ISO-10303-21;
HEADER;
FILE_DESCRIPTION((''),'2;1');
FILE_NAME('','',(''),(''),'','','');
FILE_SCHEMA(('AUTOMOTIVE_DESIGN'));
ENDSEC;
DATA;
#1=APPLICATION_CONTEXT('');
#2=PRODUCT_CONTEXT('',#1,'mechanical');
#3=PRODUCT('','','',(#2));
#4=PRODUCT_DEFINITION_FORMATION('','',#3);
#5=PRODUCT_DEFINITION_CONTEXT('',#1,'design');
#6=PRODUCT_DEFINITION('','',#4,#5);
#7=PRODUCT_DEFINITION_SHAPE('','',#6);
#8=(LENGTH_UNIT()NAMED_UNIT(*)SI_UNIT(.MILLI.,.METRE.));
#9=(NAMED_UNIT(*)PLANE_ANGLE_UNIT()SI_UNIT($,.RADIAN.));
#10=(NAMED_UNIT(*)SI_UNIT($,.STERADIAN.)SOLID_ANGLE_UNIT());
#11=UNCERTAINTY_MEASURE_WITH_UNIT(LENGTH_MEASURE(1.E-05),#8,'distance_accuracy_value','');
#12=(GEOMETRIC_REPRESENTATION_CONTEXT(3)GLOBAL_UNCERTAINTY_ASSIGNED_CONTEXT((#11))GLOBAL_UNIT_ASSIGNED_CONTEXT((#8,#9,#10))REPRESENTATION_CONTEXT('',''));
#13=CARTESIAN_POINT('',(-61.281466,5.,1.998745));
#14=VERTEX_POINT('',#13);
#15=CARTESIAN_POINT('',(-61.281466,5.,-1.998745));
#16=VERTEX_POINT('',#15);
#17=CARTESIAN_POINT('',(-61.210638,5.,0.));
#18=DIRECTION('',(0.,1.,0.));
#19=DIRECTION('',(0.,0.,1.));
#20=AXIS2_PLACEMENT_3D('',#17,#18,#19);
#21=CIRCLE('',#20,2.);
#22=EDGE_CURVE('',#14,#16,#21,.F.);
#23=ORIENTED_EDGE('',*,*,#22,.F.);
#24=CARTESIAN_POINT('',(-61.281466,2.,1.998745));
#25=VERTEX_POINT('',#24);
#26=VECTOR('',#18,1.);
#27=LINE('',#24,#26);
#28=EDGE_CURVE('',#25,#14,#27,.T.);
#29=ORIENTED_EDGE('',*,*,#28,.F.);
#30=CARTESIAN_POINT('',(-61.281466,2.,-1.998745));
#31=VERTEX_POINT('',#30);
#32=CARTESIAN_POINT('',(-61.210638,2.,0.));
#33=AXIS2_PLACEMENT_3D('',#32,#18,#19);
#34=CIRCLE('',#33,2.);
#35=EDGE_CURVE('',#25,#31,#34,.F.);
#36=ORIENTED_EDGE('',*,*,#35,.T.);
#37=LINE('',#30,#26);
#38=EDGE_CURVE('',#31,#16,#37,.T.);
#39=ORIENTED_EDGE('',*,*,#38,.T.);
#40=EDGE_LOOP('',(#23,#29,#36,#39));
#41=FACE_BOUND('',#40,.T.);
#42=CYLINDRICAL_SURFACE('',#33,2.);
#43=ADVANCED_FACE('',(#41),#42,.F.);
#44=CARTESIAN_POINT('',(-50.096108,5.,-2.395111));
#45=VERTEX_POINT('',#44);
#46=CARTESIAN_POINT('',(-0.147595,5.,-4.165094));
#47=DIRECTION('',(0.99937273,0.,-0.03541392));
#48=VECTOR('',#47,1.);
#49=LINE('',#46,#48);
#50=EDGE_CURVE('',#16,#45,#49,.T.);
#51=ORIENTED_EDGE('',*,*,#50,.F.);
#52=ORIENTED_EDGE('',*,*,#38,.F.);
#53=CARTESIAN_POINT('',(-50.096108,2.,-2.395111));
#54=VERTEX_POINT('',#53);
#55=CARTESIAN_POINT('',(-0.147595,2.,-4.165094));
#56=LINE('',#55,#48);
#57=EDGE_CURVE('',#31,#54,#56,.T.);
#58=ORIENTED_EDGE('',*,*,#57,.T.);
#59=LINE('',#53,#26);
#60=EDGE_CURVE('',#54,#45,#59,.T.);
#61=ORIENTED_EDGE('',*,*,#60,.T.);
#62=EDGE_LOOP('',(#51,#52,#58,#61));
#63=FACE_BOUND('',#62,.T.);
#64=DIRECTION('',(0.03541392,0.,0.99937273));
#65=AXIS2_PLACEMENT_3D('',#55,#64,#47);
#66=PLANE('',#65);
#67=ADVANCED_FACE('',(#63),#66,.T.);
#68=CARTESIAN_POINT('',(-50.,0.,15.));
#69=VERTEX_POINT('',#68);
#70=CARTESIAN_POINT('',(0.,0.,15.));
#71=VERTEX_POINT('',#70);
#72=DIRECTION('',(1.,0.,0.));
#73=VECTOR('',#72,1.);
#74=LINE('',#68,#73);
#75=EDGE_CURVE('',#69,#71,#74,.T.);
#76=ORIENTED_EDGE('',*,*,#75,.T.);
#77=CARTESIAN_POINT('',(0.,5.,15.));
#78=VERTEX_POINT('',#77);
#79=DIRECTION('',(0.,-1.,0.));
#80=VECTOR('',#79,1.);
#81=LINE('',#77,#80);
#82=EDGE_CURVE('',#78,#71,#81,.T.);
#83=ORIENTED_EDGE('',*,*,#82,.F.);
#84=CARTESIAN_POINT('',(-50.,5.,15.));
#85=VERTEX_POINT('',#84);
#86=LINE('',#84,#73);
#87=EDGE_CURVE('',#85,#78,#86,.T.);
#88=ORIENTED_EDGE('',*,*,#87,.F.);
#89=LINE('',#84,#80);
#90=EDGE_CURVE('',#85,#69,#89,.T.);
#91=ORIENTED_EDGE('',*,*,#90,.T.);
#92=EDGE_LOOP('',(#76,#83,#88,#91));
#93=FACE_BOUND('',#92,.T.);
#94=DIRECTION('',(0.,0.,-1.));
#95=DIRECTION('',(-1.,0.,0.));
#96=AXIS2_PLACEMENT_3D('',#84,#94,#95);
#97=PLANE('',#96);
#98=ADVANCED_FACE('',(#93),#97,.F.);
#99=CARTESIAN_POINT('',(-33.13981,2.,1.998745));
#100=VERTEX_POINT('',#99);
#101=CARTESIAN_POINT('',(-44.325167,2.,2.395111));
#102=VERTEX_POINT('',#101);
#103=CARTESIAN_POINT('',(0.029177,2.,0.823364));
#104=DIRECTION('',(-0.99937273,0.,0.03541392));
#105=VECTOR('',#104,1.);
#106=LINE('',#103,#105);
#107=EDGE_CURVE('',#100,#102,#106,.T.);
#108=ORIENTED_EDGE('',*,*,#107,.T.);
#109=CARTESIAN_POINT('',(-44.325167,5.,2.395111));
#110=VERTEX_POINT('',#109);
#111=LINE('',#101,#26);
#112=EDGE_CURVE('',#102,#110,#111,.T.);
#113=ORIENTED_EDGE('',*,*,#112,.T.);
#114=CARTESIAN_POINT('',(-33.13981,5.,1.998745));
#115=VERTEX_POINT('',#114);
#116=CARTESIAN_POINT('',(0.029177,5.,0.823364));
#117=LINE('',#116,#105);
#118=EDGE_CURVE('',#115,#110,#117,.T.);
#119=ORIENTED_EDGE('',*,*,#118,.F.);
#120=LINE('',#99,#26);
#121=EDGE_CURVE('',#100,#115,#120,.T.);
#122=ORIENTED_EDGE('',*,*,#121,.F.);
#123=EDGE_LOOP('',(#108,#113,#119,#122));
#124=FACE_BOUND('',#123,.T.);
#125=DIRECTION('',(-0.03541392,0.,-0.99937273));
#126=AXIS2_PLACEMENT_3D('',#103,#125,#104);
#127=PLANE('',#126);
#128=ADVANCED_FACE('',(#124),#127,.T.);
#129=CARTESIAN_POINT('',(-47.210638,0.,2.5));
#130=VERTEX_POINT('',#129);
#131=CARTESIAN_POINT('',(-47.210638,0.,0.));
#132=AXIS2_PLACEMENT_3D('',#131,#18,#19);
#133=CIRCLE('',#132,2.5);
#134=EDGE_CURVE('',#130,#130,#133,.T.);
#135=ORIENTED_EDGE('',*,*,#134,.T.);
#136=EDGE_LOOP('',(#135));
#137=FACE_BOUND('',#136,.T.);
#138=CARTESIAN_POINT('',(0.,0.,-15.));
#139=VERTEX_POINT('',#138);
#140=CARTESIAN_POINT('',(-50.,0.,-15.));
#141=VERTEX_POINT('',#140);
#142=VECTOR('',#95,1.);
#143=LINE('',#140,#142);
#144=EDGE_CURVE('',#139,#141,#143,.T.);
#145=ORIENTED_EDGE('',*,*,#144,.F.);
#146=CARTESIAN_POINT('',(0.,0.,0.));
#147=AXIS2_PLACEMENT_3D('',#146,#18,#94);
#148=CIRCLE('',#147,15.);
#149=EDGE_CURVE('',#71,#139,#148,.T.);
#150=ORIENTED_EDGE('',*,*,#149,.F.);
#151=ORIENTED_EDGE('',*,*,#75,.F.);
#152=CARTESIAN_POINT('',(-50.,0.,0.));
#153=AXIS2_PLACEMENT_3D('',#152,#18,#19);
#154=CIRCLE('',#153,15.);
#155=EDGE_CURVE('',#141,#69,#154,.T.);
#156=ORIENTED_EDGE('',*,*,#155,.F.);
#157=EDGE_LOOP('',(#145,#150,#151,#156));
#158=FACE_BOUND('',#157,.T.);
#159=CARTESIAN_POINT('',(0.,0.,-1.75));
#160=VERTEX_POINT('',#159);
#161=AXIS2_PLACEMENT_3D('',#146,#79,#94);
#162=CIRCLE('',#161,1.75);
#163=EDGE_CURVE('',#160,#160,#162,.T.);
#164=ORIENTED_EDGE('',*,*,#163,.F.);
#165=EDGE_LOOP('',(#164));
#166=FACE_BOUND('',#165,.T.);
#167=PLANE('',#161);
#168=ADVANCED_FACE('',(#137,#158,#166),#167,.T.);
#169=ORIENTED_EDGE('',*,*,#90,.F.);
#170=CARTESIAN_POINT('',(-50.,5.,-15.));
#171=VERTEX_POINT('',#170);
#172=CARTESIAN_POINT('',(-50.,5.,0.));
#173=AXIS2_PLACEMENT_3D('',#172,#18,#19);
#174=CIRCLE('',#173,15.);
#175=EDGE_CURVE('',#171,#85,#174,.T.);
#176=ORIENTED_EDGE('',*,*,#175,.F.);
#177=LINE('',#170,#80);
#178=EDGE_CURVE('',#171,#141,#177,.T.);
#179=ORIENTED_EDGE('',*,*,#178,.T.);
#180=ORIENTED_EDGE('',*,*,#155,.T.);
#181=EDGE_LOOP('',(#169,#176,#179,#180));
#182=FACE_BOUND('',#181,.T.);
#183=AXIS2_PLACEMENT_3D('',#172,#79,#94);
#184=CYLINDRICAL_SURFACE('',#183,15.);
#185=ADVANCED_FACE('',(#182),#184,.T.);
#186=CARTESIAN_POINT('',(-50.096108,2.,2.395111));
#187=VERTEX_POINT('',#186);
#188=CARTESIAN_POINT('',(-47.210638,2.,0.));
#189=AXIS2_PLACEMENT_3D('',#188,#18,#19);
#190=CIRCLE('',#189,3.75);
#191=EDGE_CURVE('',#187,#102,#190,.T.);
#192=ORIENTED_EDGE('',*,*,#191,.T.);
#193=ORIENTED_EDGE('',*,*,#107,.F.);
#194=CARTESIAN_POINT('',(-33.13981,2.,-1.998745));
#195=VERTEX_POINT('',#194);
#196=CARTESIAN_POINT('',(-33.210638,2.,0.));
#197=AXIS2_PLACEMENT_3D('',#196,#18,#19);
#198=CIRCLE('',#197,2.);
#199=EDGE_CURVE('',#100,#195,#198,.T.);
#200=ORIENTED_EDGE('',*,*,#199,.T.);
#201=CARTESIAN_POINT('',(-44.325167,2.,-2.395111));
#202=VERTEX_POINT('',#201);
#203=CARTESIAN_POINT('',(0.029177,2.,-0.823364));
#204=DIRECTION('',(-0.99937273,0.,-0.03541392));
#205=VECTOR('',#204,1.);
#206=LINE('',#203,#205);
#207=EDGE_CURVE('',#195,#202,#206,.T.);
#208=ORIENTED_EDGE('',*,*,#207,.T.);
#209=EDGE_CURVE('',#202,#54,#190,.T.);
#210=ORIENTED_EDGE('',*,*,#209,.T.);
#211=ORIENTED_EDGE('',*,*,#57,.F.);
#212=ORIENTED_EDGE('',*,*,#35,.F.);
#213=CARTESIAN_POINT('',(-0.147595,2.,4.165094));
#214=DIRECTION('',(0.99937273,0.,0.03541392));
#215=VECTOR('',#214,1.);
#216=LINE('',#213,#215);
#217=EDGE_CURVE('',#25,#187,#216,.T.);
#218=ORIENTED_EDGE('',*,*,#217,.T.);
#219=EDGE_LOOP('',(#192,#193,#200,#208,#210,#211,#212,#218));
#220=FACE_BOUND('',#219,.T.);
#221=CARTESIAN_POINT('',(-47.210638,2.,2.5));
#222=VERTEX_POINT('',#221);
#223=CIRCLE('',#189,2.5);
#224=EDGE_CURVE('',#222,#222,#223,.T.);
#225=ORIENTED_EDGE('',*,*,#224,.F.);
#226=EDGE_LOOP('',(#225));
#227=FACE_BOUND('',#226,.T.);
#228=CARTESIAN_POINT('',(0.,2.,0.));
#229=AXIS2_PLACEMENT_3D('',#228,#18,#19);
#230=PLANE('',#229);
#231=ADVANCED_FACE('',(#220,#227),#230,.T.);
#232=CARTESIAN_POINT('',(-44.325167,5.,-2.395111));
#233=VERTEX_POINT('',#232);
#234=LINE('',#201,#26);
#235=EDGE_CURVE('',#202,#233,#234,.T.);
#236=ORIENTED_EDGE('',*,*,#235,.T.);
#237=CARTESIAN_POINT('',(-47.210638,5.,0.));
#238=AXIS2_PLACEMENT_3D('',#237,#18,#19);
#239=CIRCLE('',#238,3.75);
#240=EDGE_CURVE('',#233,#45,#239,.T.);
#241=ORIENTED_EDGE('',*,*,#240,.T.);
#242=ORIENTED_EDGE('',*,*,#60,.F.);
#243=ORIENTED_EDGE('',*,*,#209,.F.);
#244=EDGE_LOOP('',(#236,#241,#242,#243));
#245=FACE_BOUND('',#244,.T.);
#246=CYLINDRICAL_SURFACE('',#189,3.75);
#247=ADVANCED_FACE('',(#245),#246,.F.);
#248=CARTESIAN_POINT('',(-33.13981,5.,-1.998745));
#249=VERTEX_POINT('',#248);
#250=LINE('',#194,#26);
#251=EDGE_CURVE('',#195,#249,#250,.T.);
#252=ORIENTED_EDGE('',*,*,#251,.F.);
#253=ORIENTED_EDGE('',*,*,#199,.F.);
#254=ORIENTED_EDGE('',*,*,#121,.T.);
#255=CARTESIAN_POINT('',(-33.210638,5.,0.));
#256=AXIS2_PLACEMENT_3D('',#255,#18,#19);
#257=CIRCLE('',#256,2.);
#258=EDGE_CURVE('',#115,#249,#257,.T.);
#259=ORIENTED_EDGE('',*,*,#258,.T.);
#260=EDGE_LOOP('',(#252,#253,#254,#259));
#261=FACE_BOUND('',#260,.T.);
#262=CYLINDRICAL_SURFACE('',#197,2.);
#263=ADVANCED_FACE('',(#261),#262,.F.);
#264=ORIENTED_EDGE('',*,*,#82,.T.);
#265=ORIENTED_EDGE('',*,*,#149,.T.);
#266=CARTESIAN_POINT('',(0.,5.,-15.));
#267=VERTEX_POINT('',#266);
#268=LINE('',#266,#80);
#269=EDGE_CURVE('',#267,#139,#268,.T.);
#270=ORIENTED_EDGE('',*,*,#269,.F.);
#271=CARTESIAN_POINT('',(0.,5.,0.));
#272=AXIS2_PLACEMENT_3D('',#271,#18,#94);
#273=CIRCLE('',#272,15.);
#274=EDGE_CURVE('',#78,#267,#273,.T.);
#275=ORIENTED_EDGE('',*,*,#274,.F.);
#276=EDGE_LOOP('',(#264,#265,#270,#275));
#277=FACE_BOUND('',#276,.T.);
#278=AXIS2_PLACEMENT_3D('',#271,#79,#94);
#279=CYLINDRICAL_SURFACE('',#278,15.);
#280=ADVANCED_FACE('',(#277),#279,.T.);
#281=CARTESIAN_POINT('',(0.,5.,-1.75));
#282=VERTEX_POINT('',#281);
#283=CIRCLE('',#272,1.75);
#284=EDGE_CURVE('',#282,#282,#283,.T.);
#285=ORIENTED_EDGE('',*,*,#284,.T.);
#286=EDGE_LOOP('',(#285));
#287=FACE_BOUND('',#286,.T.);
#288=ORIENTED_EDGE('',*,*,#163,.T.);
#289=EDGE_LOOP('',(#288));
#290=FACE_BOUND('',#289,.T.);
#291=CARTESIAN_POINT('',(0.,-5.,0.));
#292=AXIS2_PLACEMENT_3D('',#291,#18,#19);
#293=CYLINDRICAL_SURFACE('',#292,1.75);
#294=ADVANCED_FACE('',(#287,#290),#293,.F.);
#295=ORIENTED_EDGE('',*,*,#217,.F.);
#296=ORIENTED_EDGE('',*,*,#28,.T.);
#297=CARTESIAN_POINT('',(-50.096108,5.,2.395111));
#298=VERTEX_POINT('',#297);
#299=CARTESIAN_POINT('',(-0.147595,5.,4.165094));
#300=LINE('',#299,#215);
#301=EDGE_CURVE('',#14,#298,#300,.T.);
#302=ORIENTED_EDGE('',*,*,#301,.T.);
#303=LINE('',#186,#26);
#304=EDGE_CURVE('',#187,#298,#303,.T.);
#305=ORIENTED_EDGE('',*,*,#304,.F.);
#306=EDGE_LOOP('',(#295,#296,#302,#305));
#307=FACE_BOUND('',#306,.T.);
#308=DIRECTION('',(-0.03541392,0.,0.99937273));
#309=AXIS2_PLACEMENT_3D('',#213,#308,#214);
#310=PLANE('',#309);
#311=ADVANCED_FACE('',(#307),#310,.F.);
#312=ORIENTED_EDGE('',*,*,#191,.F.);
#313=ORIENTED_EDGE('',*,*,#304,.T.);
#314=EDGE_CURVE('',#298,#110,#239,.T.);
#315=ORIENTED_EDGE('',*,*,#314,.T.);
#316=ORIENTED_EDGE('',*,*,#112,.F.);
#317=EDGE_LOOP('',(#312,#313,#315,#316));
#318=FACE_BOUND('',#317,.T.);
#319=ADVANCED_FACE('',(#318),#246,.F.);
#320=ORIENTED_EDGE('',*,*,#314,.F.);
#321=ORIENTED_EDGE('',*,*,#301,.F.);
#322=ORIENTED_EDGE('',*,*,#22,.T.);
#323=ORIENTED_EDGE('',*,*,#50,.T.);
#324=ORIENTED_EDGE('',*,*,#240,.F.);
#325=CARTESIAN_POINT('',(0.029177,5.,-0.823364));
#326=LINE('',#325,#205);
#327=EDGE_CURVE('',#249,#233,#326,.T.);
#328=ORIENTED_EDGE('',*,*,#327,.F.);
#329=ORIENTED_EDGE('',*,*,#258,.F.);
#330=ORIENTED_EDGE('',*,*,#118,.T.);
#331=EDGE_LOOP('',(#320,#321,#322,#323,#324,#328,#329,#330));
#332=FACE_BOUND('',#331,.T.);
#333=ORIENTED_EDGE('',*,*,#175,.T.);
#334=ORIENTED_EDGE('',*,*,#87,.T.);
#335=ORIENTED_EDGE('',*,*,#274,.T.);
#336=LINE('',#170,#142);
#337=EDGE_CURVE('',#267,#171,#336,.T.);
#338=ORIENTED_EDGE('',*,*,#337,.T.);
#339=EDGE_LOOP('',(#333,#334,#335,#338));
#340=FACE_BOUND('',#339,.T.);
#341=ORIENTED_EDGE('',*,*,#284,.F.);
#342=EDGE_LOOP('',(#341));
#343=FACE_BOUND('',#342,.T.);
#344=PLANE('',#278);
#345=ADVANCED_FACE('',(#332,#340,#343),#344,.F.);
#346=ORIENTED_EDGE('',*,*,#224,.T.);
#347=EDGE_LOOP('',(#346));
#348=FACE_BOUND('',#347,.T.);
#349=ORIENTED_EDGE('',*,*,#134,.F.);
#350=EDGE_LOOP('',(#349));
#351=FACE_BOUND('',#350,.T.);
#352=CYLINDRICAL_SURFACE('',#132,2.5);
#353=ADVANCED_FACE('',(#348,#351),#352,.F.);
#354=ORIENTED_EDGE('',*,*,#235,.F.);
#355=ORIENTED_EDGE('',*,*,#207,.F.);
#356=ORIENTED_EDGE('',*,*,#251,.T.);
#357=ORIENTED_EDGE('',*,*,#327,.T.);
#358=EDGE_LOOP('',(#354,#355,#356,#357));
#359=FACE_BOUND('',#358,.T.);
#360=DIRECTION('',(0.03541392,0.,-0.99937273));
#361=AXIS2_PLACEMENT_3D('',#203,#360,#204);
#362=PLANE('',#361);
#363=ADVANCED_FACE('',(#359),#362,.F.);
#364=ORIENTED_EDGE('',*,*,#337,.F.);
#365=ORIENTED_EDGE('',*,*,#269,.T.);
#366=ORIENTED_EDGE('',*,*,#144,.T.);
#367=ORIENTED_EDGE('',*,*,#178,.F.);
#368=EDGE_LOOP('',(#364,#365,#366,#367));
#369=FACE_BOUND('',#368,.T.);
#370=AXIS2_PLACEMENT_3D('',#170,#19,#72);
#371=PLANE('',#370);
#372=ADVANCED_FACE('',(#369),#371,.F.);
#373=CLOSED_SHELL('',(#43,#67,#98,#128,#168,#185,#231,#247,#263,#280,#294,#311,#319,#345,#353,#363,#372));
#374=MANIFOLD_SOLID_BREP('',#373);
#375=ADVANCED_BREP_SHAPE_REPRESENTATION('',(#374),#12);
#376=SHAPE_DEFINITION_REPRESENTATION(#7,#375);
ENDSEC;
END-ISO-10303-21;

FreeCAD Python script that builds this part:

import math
import FreeCAD as App
import Part
import Sketcher
Q = App.Units.Quantity

doc = App.newDocument("Part")
params = doc.addObject("Spreadsheet::Sheet", "Params")
for row, (alias, value) in enumerate([
    ("sketch1_radius", "15 mm"),
    ("sketch1_width", "50 mm"),
    ("pad1_length", "5 mm"),
    ("sketch2_diameter", "3.5 mm"),
    ("pocket1_length", "10 mm"),
    ("sketch3_radius", "2 mm"),
    ("sketch3_radius2", "2.5 mm"),
    ("sketch3_radius3", "3.75 mm"),
    ("pocket2_length", "3 mm"),
    ("sketch4_diameter", "5 mm"),
], start=1):
    params.set(f"A{row}", alias)
    params.set(f"B{row}", "=" + value)
    params.setAlias(f"B{row}", alias)

body = doc.addObject("PartDesign::Body", "Body")

# Sketch on XZ plane
sketch1 = doc.addObject("Sketcher::SketchObject", "Sketch")
body.addObject(sketch1)
sketch1.AttachmentSupport = (doc.XZ_Plane, [""])
sketch1.MapMode = "FlatFace"
sketch1.addGeometry(Part.LineSegment(App.Vector(0, -15, 0), App.Vector(-50, -15, 0)), False)
sketch1.addGeometry(Part.ArcOfCircle(Part.Circle(App.Vector(-50, 0, 0), App.Vector(0, 0, 1), 15), math.radians(90), math.radians(270)), False)
sketch1.addGeometry(Part.LineSegment(App.Vector(-50, 15, 0), App.Vector(0, 15, 0)), False)
sketch1.addGeometry(Part.ArcOfCircle(Part.Circle(App.Vector(0, 0, 0), App.Vector(0, 0, 1), 15), math.radians(-90), math.radians(90)), False)
sketch1.addConstraint(Sketcher.Constraint("Tangent", 0, 2, 1, 2))
sketch1.addConstraint(Sketcher.Constraint("Tangent", 1, 1, 2, 1))
sketch1.addConstraint(Sketcher.Constraint("Tangent", 2, 2, 3, 2))
sketch1.addConstraint(Sketcher.Constraint("Tangent", 3, 1, 0, 1))
sketch1.addConstraint(Sketcher.Constraint("Horizontal", 0))
sketch1.addConstraint(Sketcher.Constraint("Horizontal", 2))
sketch1.addConstraint(Sketcher.Constraint("Coincident", 3, 3, -1, 1))
sketch1.addConstraint(Sketcher.Constraint("Radius", 1, Q("15 mm")))
sketch1.addConstraint(Sketcher.Constraint("DistanceX", 0, 2, 0, 1, Q("50 mm")))
sketch1.setExpression("Constraints[7]", "Params.sketch1_radius")
sketch1.setExpression("Constraints[8]", "Params.sketch1_width")
pad1 = doc.addObject("PartDesign::Pad", "Pad")
body.addObject(pad1)
pad1.Profile = sketch1
pad1.setExpression("Length", "Params.pad1_length")
pad1.Reversed = True

# Sketch on XZ plane
sketch2 = doc.addObject("Sketcher::SketchObject", "Sketch001")
body.addObject(sketch2)
sketch2.AttachmentSupport = (doc.XZ_Plane, [""])
sketch2.MapMode = "FlatFace"
sketch2.AttachmentOffset = App.Placement(App.Vector(0, 0, -5), App.Rotation())
sketch2.addGeometry(Part.Circle(App.Vector(0, 0, 0), App.Vector(0, 0, 1), 1.8), False)
sketch2.addConstraint(Sketcher.Constraint("Coincident", 0, 3, -1, 1))
sketch2.addConstraint(Sketcher.Constraint("Diameter", 0, Q("3.5 mm")))
sketch2.setExpression("Constraints[1]", "Params.sketch2_diameter")
pocket1 = doc.addObject("PartDesign::Pocket", "Pocket")
body.addObject(pocket1)
pocket1.Profile = sketch2
pocket1.setExpression("Length", "Params.pocket1_length")
pocket1.Reversed = True

# Sketch on XZ plane
sketch3 = doc.addObject("Sketcher::SketchObject", "Sketch002")
body.addObject(sketch3)
sketch3.AttachmentSupport = (doc.XZ_Plane, [""])
sketch3.MapMode = "FlatFace"
sketch3.AttachmentOffset = App.Placement(App.Vector(0, 0, -5), App.Rotation())
sketch3.addGeometry(Part.LineSegment(App.Vector(-50.1, -2.4, 0), App.Vector(-61.28, -2, 0)), False)
sketch3.addGeometry(Part.ArcOfCircle(Part.Circle(App.Vector(-61.21, 0, 0), App.Vector(0, 0, 1), 2), math.radians(92), math.radians(268)), False)
sketch3.addGeometry(Part.LineSegment(App.Vector(-61.28, 2, 0), App.Vector(-50.1, 2.4, 0)), False)
sketch3.addGeometry(Part.ArcOfCircle(Part.Circle(App.Vector(-47.21, 0, 0), App.Vector(0, 0, 1), 3.75), math.radians(40), math.radians(140)), False)
sketch3.addGeometry(Part.LineSegment(App.Vector(-44.33, 2.4, 0), App.Vector(-33.14, 2, 0)), False)
sketch3.addGeometry(Part.ArcOfCircle(Part.Circle(App.Vector(-33.21, 0, 0), App.Vector(0, 0, 1), 2), math.radians(-88), math.radians(88)), False)
sketch3.addGeometry(Part.LineSegment(App.Vector(-33.14, -2, 0), App.Vector(-44.33, -2.4, 0)), False)
sketch3.addGeometry(Part.ArcOfCircle(Part.Circle(App.Vector(-47.21, 0, 0), App.Vector(0, 0, 1), 3.75), math.radians(-140), math.radians(-40)), False)
sketch3.addGeometry(Part.ArcOfCircle(Part.Circle(App.Vector(-47.21, 0, 0), App.Vector(0, 0, 1), 2.5), math.radians(95), math.radians(265)), False)
sketch3.addGeometry(Part.ArcOfCircle(Part.Circle(App.Vector(-47.21, 0, 0), App.Vector(0, 0, 1), 2.5), math.radians(-95.35), math.radians(-84.65)), False)
sketch3.addGeometry(Part.ArcOfCircle(Part.Circle(App.Vector(-47.21, 0, 0), App.Vector(0, 0, 1), 2.5), math.radians(-85), math.radians(0)), False)
sketch3.addGeometry(Part.ArcOfCircle(Part.Circle(App.Vector(-47.21, 0, 0), App.Vector(0, 0, 1), 2.5), math.radians(0), math.radians(85)), False)
sketch3.addGeometry(Part.ArcOfCircle(Part.Circle(App.Vector(-47.21, 0, 0), App.Vector(0, 0, 1), 2.5), math.radians(84.65), math.radians(95.35)), False)
sketch3.addConstraint(Sketcher.Constraint("Tangent", 0, 2, 1, 2))
sketch3.addConstraint(Sketcher.Constraint("Tangent", 1, 1, 2, 1))
sketch3.addConstraint(Sketcher.Constraint("Coincident", 2, 2, 3, 2))
sketch3.addConstraint(Sketcher.Constraint("Coincident", 3, 1, 4, 1))
sketch3.addConstraint(Sketcher.Constraint("Tangent", 4, 2, 5, 2))
sketch3.addConstraint(Sketcher.Constraint("Tangent", 5, 1, 6, 1))
sketch3.addConstraint(Sketcher.Constraint("Coincident", 6, 2, 7, 2))
sketch3.addConstraint(Sketcher.Constraint("Coincident", 7, 1, 0, 1))
sketch3.addConstraint(Sketcher.Constraint("Tangent", 8, 2, 9, 1))
sketch3.addConstraint(Sketcher.Constraint("Tangent", 9, 2, 10, 1))
sketch3.addConstraint(Sketcher.Constraint("Tangent", 10, 2, 11, 1))
sketch3.addConstraint(Sketcher.Constraint("Tangent", 11, 2, 12, 1))
sketch3.addConstraint(Sketcher.Constraint("Tangent", 12, 2, 8, 1))
sketch3.addConstraint(Sketcher.Constraint("Coincident", 7, 3, 3, 3))
sketch3.addConstraint(Sketcher.Constraint("Coincident", 8, 3, 3, 3))
sketch3.addConstraint(Sketcher.Constraint("Coincident", 10, 3, 3, 3))
sketch3.addConstraint(Sketcher.Constraint("Equal", 1, 5))
sketch3.addConstraint(Sketcher.Constraint("Equal", 3, 7))
sketch3.addConstraint(Sketcher.Constraint("Symmetric", 0, 2, 1, 1, -1))
sketch3.addConstraint(Sketcher.Constraint("Symmetric", 4, 2, 5, 1, -1))
sketch3.addConstraint(Sketcher.Constraint("Symmetric", 9, 2, 11, 2, -1))
sketch3.addConstraint(Sketcher.Constraint("PointOnObject", 10, 2, -1))
sketch3.addConstraint(Sketcher.Constraint("Parallel", 0, 4))
sketch3.addConstraint(Sketcher.Constraint("Horizontal", 2, 2, 3, 1))
sketch3.addConstraint(Sketcher.Constraint("Horizontal", 8, 2, 9, 2))
sketch3.addConstraint(Sketcher.Constraint("Horizontal", 11, 2, 12, 2))
sketch3.addConstraint(Sketcher.Constraint("Radius", 1, Q("2 mm")))
sketch3.addConstraint(Sketcher.Constraint("Radius", 8, Q("2.5 mm")))
sketch3.addConstraint(Sketcher.Constraint("Radius", 3, Q("3.75 mm")))
sketch3.addConstraint(Sketcher.Constraint("DistanceX", 1, 3, 3, 3, Q("14 mm")))
sketch3.addConstraint(Sketcher.Constraint("DistanceX", 9, 2, -1, 1, Q("46.977402 mm")))
sketch3.addConstraint(Sketcher.Constraint("DistanceX", 2, 2, -1, 1, Q("50.096108 mm")))
sketch3.addConstraint(Sketcher.Constraint("DistanceY", -1, 1, 2, 2, Q("2.395111 mm")))
sketch3.setExpression("Constraints[26]", "Params.sketch3_radius")
sketch3.setExpression("Constraints[27]", "Params.sketch3_radius2")
sketch3.setExpression("Constraints[28]", "Params.sketch3_radius3")
pocket2 = doc.addObject("PartDesign::Pocket", "Pocket001")
body.addObject(pocket2)
pocket2.Profile = sketch3
pocket2.setExpression("Length", "Params.pocket2_length")
pocket2.Reversed = True

# Sketch on XZ plane
sketch4 = doc.addObject("Sketcher::SketchObject", "Sketch003")
body.addObject(sketch4)
sketch4.AttachmentSupport = (doc.XZ_Plane, [""])
sketch4.MapMode = "FlatFace"
sketch4.AttachmentOffset = App.Placement(App.Vector(0, 0, -5), App.Rotation())
sketch4.addGeometry(Part.Circle(App.Vector(-47.2, 0, 0), App.Vector(0, 0, 1), 2.5), False)
sketch4.addConstraint(Sketcher.Constraint("PointOnObject", 0, 3, -1))
sketch4.addConstraint(Sketcher.Constraint("Diameter", 0, Q("5 mm")))
sketch4.addConstraint(Sketcher.Constraint("DistanceX", 0, 3, -1, 1, Q("47.210638 mm")))
sketch4.setExpression("Constraints[1]", "Params.sketch4_diameter")
pocket3 = doc.addObject("PartDesign::Pocket", "Pocket002")
body.addObject(pocket3)
pocket3.Profile = sketch4
pocket3.Type = "ThroughAll"
pocket3.Reversed = True

doc.recompute()
